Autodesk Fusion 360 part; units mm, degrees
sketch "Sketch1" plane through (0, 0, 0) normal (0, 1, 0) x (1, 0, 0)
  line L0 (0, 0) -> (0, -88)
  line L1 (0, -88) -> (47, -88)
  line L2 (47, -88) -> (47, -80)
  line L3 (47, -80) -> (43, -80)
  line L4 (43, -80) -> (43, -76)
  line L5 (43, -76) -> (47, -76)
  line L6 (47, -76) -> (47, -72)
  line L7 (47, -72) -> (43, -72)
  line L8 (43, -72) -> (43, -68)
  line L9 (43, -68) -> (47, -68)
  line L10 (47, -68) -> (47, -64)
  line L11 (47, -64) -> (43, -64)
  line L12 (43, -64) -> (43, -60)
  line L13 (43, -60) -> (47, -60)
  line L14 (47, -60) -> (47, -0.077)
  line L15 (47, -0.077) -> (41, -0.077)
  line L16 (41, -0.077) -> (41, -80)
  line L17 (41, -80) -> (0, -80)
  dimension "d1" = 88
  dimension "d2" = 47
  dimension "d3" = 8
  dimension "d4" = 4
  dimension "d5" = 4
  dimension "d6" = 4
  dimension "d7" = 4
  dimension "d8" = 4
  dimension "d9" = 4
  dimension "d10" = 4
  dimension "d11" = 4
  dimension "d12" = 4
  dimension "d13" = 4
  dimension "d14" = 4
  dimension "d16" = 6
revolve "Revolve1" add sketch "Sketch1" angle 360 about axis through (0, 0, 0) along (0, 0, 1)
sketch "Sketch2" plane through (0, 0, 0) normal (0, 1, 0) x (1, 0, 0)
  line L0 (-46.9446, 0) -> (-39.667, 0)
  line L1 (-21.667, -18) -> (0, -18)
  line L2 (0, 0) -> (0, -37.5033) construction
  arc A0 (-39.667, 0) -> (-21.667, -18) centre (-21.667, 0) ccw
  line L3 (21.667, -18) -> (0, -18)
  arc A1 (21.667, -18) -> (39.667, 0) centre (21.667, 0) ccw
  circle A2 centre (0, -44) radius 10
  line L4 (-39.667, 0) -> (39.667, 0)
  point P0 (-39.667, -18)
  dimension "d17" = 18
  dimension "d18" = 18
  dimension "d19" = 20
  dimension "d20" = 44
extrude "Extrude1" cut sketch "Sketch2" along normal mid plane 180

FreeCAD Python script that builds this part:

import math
import FreeCAD as App
import Part
import Sketcher

V = App.Vector
Q = App.Units.Quantity

doc = App.newDocument("Part")
body = doc.addObject("PartDesign::Body", "Body")

# Sketch on XZ plane
sketch1 = body.newObject("Sketcher::SketchObject", "Sketch")
sketch1.AttachmentSupport = (doc.getObject("XZ_Plane"), [""])
sketch1.MapMode = "FlatFace"
sketch1.addGeometry([
    Part.LineSegment(V(41, 80, 0), V(0, 80, 0)),  # 0
    Part.LineSegment(V(0, 80, 0), V(0, 88, 0)),  # 1
    Part.LineSegment(V(0, 88, 0), V(47, 88, 0)),  # 2
    Part.LineSegment(V(47, 88, 0), V(47, 80, 0)),  # 3
    Part.LineSegment(V(47, 80, 0), V(43, 80, 0)),  # 4
    Part.LineSegment(V(43, 80, 0), V(43, 76, 0)),  # 5
    Part.LineSegment(V(43, 76, 0), V(47, 76, 0)),  # 6
    Part.LineSegment(V(47, 76, 0), V(47, 72, 0)),  # 7
    Part.LineSegment(V(47, 72, 0), V(43, 72, 0)),  # 8
    Part.LineSegment(V(43, 72, 0), V(43, 68, 0)),  # 9
    Part.LineSegment(V(43, 68, 0), V(47, 68, 0)),  # 10
    Part.LineSegment(V(47, 68, 0), V(47, 64, 0)),  # 11
    Part.LineSegment(V(47, 64, 0), V(43, 64, 0)),  # 12
    Part.LineSegment(V(43, 64, 0), V(43, 60, 0)),  # 13
    Part.LineSegment(V(43, 60, 0), V(47, 60, 0)),  # 14
    Part.LineSegment(V(47, 60, 0), V(47, 0.077, 0)),  # 15
    Part.LineSegment(V(47, 0.077, 0), V(41, 0.077, 0)),  # 16
    Part.LineSegment(V(41, 0.077, 0), V(41, 80, 0)),  # 17
], False)
sketch1.addConstraint([
    Sketcher.Constraint("Coincident", 0, 2, 1, 1),
    Sketcher.Constraint("Coincident", 1, 2, 2, 1),
    Sketcher.Constraint("Coincident", 2, 2, 3, 1),
    Sketcher.Constraint("Coincident", 3, 2, 4, 1),
    Sketcher.Constraint("Coincident", 4, 2, 5, 1),
    Sketcher.Constraint("Coincident", 5, 2, 6, 1),
    Sketcher.Constraint("Coincident", 6, 2, 7, 1),
    Sketcher.Constraint("Coincident", 7, 2, 8, 1),
    Sketcher.Constraint("Coincident", 8, 2, 9, 1),
    Sketcher.Constraint("Coincident", 9, 2, 10, 1),
    Sketcher.Constraint("Coincident", 10, 2, 11, 1),
    Sketcher.Constraint("Coincident", 11, 2, 12, 1),
    Sketcher.Constraint("Coincident", 12, 2, 13, 1),
    Sketcher.Constraint("Coincident", 13, 2, 14, 1),
    Sketcher.Constraint("Coincident", 14, 2, 15, 1),
    Sketcher.Constraint("Coincident", 15, 2, 16, 1),
    Sketcher.Constraint("Coincident", 16, 2, 17, 1),
    Sketcher.Constraint("Coincident", 17, 2, 0, 1),
    Sketcher.Constraint("Horizontal", 0),
    Sketcher.Constraint("Vertical", 1),
    Sketcher.Constraint("Horizontal", 2),
    Sketcher.Constraint("Vertical", 3),
    Sketcher.Constraint("Horizontal", 4),
    Sketcher.Constraint("Vertical", 5),
    Sketcher.Constraint("Horizontal", 6),
    Sketcher.Constraint("Vertical", 7),
    Sketcher.Constraint("Horizontal", 8),
    Sketcher.Constraint("Vertical", 9),
    Sketcher.Constraint("Horizontal", 10),
    Sketcher.Constraint("Vertical", 11),
    Sketcher.Constraint("Horizontal", 12),
    Sketcher.Constraint("Vertical", 13),
    Sketcher.Constraint("Horizontal", 14),
    Sketcher.Constraint("Vertical", 15),
    Sketcher.Constraint("Horizontal", 16),
    Sketcher.Constraint("Vertical", 17),
    Sketcher.Constraint("PointOnObject", 0, 2, -2),
    Sketcher.Constraint("Horizontal", 0, 2, 3, 2),
    Sketcher.Constraint("Vertical", 3, 2, 6, 2),
    Sketcher.Constraint("Vertical", 5, 2, 8, 2),
    Sketcher.Constraint("Vertical", 7, 2, 10, 2),
    Sketcher.Constraint("Vertical", 9, 2, 12, 2),
    Sketcher.Constraint("Vertical", 11, 2, 14, 2),
    Sketcher.Constraint("Equal", 14, 5),
    Sketcher.Constraint("Equal", 5, 7),
    Sketcher.Constraint("Equal", 7, 9),
    Sketcher.Constraint("Equal", 9, 11),
    Sketcher.Constraint("Equal", 11, 13),
    Sketcher.Constraint("DistanceX", 2, 1, 2, 2, Q("47 mm")),
    Sketcher.Constraint("DistanceX", 4, 2, 4, 1, Q("4 mm")),
    Sketcher.Constraint("DistanceX", 16, 2, 16, 1, Q("6 mm")),
    Sketcher.Constraint("DistanceY", 1, 1, 1, 2, Q("8 mm")),
    Sketcher.Constraint("DistanceY", -1, 1, 1, 2, Q("88 mm")),
    Sketcher.Constraint("DistanceY", 15, 2, 15, 1, Q("59.923 mm")),
])
revolution = body.newObject("PartDesign::Revolution", "Revolution")
revolution.Profile = sketch1
revolution.ReferenceAxis = (sketch1, ["V_Axis"])
revolution.Angle = 360

# Sketch on XZ plane
sketch2 = body.newObject("Sketcher::SketchObject", "Sketch001")
sketch2.AttachmentSupport = (doc.getObject("XZ_Plane"), [""])
sketch2.MapMode = "FlatFace"
sketch2.addGeometry([
    Part.ArcOfCircle(Part.Circle(V(-21.667, 0, 0), V(0, 0, 1), 18), math.radians(90), math.radians(180)),  # 0
    Part.LineSegment(V(-21.667, 18, 0), V(21.667, 18, 0)),  # 1
    Part.ArcOfCircle(Part.Circle(V(21.667, 0, 0), V(0, 0, 1), 18), math.radians(0), math.radians(90)),  # 2
    Part.LineSegment(V(39.667, 0, 0), V(-39.667, 0, 0)),  # 3
    Part.Circle(V(0, 44, 0), V(0, 0, 1), 10),  # 4
], False)
sketch2.addConstraint([
    Sketcher.Constraint("Tangent", 0, 1, 1, 1),
    Sketcher.Constraint("Tangent", 1, 2, 2, 2),
    Sketcher.Constraint("Coincident", 2, 1, 3, 1),
    Sketcher.Constraint("Coincident", 3, 2, 0, 2),
    Sketcher.Constraint("Horizontal", 1),
    Sketcher.Constraint("Horizontal", 3),
    Sketcher.Constraint("Equal", 0, 2),
    Sketcher.Constraint("Symmetric", 0, 3, 2, 3, -1, 1),
    Sketcher.Constraint("PointOnObject", 4, 3, -2),
    Sketcher.Constraint("PointOnObject", 2, 1, -1),
    Sketcher.Constraint("Diameter", 4, Q("20 mm")),
    Sketcher.Constraint("Radius", 0, Q("18 mm")),
    Sketcher.Constraint("DistanceY", -1, 1, 4, 3, Q("44 mm")),
    Sketcher.Constraint("DistanceX", 1, 1, 1, 2, Q("43.334 mm")),
])
pocket1 = body.newObject("PartDesign::Pocket", "Pocket")
pocket1.Profile = sketch2
pocket1.Length = 180
pocket1.Midplane = True

doc.recompute()
